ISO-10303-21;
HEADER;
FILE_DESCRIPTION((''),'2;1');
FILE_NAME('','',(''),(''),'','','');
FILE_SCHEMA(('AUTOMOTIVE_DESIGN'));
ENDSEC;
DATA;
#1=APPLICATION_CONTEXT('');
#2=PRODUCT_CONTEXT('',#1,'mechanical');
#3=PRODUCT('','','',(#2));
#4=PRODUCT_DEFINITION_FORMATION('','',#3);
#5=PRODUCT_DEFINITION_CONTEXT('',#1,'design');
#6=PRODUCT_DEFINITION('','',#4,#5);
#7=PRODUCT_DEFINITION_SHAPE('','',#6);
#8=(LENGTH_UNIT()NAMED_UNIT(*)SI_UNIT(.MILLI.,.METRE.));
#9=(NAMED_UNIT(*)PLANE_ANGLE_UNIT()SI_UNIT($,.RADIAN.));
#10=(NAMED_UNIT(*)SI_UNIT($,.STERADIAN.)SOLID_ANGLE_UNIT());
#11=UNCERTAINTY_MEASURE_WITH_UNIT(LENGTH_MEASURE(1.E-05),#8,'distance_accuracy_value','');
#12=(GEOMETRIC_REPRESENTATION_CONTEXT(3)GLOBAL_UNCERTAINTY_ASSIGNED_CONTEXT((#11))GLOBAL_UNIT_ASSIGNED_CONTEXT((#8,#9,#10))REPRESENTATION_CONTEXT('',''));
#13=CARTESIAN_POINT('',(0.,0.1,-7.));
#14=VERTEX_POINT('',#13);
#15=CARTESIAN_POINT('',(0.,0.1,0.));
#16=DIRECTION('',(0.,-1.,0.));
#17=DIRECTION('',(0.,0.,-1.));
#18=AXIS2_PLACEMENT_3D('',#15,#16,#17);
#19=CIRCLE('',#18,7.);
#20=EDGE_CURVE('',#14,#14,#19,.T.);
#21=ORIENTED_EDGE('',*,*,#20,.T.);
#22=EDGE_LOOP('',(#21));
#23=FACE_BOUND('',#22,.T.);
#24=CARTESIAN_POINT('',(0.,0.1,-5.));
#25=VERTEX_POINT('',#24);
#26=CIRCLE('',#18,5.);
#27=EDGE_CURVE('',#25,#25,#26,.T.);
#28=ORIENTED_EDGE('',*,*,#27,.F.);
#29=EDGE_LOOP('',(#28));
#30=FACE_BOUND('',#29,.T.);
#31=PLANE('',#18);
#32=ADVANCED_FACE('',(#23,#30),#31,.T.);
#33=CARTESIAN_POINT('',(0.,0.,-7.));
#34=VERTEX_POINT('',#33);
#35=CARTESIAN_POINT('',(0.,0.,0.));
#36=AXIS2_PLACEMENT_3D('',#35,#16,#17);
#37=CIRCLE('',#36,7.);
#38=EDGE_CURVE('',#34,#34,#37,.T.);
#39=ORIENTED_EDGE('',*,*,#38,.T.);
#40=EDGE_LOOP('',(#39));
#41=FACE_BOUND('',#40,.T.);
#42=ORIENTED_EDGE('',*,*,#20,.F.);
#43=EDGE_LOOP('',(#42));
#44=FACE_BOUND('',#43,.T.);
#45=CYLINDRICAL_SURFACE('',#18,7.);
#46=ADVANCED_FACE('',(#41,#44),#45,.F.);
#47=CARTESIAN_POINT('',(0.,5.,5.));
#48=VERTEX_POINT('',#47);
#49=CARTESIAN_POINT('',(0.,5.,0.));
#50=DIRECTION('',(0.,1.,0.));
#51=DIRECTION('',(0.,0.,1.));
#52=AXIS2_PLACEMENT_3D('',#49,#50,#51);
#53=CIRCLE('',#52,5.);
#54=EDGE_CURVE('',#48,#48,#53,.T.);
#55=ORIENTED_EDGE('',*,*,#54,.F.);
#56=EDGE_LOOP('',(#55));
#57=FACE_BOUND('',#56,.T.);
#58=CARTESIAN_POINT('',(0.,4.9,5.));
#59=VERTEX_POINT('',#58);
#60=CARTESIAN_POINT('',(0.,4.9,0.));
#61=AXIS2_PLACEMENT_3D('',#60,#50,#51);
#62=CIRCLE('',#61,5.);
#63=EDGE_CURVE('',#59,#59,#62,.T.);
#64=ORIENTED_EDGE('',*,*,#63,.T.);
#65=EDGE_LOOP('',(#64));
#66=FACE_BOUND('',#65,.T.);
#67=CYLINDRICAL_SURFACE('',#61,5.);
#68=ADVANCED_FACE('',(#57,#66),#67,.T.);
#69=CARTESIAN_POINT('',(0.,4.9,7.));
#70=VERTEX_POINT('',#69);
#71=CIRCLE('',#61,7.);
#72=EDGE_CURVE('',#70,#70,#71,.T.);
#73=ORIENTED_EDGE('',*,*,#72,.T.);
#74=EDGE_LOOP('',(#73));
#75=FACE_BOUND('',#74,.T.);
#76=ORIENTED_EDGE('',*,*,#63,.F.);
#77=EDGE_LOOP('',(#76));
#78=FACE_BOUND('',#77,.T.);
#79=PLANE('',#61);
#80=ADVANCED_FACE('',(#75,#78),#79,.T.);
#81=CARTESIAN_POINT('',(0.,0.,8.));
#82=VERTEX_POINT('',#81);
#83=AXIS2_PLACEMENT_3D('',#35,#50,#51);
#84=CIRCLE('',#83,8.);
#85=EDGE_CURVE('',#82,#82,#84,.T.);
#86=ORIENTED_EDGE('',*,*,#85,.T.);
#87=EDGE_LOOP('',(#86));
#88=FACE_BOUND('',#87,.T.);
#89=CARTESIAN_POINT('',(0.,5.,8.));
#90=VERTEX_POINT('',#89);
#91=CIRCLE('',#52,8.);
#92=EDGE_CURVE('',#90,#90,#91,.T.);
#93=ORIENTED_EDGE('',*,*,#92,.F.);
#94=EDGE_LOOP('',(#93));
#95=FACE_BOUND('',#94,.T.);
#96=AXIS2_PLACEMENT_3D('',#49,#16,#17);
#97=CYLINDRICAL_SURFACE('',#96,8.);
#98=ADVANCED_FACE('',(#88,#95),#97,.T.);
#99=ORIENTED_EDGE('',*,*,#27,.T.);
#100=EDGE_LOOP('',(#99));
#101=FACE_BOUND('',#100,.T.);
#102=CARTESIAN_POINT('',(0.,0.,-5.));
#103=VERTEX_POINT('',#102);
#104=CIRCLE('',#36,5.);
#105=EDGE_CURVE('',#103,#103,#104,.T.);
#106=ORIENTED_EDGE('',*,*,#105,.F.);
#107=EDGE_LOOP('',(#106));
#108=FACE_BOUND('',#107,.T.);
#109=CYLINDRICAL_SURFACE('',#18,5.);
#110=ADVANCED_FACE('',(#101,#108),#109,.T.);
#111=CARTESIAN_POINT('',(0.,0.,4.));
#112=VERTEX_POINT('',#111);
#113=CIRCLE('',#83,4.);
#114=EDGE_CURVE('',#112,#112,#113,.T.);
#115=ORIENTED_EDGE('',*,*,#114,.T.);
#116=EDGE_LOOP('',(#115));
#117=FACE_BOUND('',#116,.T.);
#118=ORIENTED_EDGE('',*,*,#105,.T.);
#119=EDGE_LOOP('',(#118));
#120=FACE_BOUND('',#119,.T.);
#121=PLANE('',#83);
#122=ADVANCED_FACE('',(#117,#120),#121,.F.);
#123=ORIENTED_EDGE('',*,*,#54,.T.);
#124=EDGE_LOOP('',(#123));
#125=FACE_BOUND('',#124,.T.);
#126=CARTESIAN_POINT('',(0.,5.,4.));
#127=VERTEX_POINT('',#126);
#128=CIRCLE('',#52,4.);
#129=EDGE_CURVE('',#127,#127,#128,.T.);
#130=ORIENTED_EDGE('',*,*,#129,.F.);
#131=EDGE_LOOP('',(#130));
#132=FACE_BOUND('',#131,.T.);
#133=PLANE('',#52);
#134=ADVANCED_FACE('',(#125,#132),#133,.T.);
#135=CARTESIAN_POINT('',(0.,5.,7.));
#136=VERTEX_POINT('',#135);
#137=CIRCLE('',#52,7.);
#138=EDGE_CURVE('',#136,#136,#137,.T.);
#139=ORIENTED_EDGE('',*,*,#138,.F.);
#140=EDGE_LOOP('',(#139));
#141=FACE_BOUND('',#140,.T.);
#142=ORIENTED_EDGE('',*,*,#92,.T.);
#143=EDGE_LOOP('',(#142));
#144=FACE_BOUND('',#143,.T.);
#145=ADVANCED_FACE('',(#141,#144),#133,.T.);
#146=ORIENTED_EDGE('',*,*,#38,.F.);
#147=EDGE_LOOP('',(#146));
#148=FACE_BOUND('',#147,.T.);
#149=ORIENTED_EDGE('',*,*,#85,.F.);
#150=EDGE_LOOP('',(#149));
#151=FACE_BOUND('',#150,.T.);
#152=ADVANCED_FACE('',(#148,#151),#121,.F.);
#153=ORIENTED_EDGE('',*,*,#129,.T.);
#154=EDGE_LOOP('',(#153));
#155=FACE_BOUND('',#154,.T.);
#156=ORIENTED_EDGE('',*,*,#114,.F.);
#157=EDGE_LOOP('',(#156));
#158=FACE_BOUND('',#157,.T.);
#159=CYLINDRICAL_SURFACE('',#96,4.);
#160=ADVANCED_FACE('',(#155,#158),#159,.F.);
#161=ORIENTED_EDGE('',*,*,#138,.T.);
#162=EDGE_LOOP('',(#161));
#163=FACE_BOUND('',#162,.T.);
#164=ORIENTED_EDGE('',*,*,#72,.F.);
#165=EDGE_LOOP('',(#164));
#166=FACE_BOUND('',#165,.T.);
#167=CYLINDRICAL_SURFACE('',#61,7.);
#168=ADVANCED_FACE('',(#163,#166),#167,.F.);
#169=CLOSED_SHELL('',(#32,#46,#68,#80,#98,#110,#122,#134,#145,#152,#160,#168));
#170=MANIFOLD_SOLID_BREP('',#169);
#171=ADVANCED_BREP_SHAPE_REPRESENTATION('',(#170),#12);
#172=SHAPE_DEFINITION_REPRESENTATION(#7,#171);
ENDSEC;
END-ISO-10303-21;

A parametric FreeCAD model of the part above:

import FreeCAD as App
import Part
import Sketcher
from FreeCAD import Vector
Q = App.Units.Quantity

doc = App.newDocument("Part")
body = doc.addObject("PartDesign::Body", "Body")

sketch1 = body.newObject("Sketcher::SketchObject", "Sketch")
sketch1.AttachmentSupport = (doc.getObject("XZ_Plane"), [""])
sketch1.MapMode = "FlatFace"
sketch1.addGeometry(Part.Circle(Vector(0, 0, 0), Vector(0, 0, 1), 8), False)
sketch1.addGeometry(Part.Circle(Vector(0, 0, 0), Vector(0, 0, 1), 4), False)
sketch1.addConstraint(Sketcher.Constraint("Coincident", 0, 3, -1, 1))
sketch1.addConstraint(Sketcher.Constraint("Coincident", 1, 3, -1, 1))
sketch1.addConstraint(Sketcher.Constraint("Diameter", 0, Q("16 mm")))
sketch1.addConstraint(Sketcher.Constraint("Diameter", 1, Q("8 mm")))
pad1 = body.newObject("PartDesign::Pad", "Pad")
pad1.Profile = sketch1
pad1.Length = 5
pad1.Reversed = True

sketch2 = body.newObject("Sketcher::SketchObject", "Sketch001")
sketch2.AttachmentSupport = (doc.getObject("XZ_Plane"), [""])
sketch2.MapMode = "FlatFace"
sketch2.AttachmentOffset = App.Placement(Vector(0, 0, -5), App.Rotation())
sketch2.addGeometry(Part.Circle(Vector(0, 0, 0), Vector(0, 0, 1), 7), False)
sketch2.addGeometry(Part.Circle(Vector(0, 0, 0), Vector(0, 0, 1), 5), False)
sketch2.addConstraint(Sketcher.Constraint("Coincident", 0, 3, -1, 1))
sketch2.addConstraint(Sketcher.Constraint("Coincident", 1, 3, -1, 1))
sketch2.addConstraint(Sketcher.Constraint("Diameter", 0, Q("14 mm")))
sketch2.addConstraint(Sketcher.Constraint("Diameter", 1, Q("10 mm")))
pocket1 = body.newObject("PartDesign::Pocket", "Pocket")
pocket1.Profile = sketch2
pocket1.Length = 0.1
pocket1.Reversed = True

sketch3 = body.newObject("Sketcher::SketchObject", "Sketch002")
sketch3.AttachmentSupport = (doc.getObject("XZ_Plane"), [""])
sketch3.MapMode = "FlatFace"
sketch3.AttachmentOffset = App.Placement(Vector(0, 0, -0.1), App.Rotation())
sketch3.addGeometry(Part.Circle(Vector(0, 0, 0), Vector(0, 0, 1), 7), False)
sketch3.addGeometry(Part.Circle(Vector(0, 0, 0), Vector(0, 0, 1), 5), False)
sketch3.addConstraint(Sketcher.Constraint("Coincident", 0, 3, -1, 1))
sketch3.addConstraint(Sketcher.Constraint("Coincident", 1, 3, -1, 1))
sketch3.addConstraint(Sketcher.Constraint("Diameter", 0, Q("14 mm")))
sketch3.addConstraint(Sketcher.Constraint("Diameter", 1, Q("10 mm")))
pocket2 = body.newObject("PartDesign::Pocket", "Pocket001")
pocket2.Profile = sketch3
pocket2.Length = 0.1
pocket2.Reversed = True

doc.recompute()
